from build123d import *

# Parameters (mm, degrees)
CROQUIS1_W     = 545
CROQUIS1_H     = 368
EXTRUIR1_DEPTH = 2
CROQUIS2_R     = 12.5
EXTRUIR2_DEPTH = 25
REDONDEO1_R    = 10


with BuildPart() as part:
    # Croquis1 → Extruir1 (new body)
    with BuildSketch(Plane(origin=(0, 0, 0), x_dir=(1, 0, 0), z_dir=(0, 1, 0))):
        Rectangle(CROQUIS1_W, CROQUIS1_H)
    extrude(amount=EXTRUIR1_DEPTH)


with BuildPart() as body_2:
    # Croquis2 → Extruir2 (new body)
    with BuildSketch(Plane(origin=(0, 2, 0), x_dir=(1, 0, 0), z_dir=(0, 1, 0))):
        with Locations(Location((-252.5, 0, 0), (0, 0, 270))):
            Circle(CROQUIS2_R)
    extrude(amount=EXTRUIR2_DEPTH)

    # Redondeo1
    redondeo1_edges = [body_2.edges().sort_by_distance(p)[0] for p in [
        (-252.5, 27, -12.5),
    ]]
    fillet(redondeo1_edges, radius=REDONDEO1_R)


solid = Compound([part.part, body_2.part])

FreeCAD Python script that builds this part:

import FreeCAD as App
import Part
import Sketcher

V = App.Vector
Q = App.Units.Quantity


def edges_at(feature, points):
    """Names of the edges that pass closest to the given points."""
    edges = feature.Shape.Edges
    near = lambda p: min(range(len(edges)), key=lambda i: edges[i].distToShape(Part.Vertex(*p))[0])
    return sorted({f"Edge{near(p) + 1}" for p in points})


def add_polygon(sketch, points):
    """Adds a closed chain of lines whose ends are joined by coincident constraints."""
    first, n = sketch.GeometryCount, len(points)
    for a, b in zip(points, points[1:] + points[:1]):
        sketch.addGeometry(Part.LineSegment(App.Vector(*a, 0), App.Vector(*b, 0)), False)
    for i in range(n):
        sketch.addConstraint(Sketcher.Constraint("Coincident", first + i, 2, first + (i + 1) % n, 1))

doc = App.newDocument("Part")
params = doc.addObject("Spreadsheet::Sheet", "Params")
for row, (alias, value) in enumerate([
    ("sketch1_width", "545 mm"),
    ("sketch1_height", "368 mm"),
    ("pad1_length", "2 mm"),
    ("sketch2_diameter", "25 mm"),
    ("pad2_length", "25 mm"),
    ("fillet_radius", "10 mm"),
], start=1):
    params.set(f"A{row}", alias)
    params.set(f"B{row}", "=" + value)
    params.setAlias(f"B{row}", alias)

body = doc.addObject("PartDesign::Body", "Body")

sketch1 = body.newObject("Sketcher::SketchObject", "Sketch")
sketch1.AttachmentSupport = (doc.getObject("XZ_Plane"), [""])
sketch1.MapMode = "FlatFace"
add_polygon(sketch1, [(-272, -184), (-272, 184), (272, 184), (272, -184)])
sketch1.addConstraint([
    Sketcher.Constraint("Vertical", 0),
    Sketcher.Constraint("Horizontal", 1),
    Sketcher.Constraint("Vertical", 2),
    Sketcher.Constraint("Horizontal", 3),
    Sketcher.Constraint("Symmetric", 0, 2, 2, 2, -1, 1),
    Sketcher.Constraint("DistanceX", 1, 1, 1, 2, Q("545 mm")),
    Sketcher.Constraint("DistanceY", 0, 1, 0, 2, Q("368 mm")),
])
sketch1.setExpression("Constraints[9]", "Params.sketch1_width")
sketch1.setExpression("Constraints[10]", "Params.sketch1_height")
pad1 = body.newObject("PartDesign::Pad", "Pad")
pad1.Profile = sketch1
pad1.setExpression("Length", "Params.pad1_length")
pad1.Reversed = True
body2 = doc.addObject("PartDesign::Body", "Body001")

sketch2 = body2.newObject("Sketcher::SketchObject", "Sketch001")
sketch2.AttachmentSupport = (doc.getObject("XZ_Plane001"), [""])
sketch2.MapMode = "FlatFace"
sketch2.AttachmentOffset = App.Placement(V(0, 0, -2), App.Rotation())
sketch2.addGeometry(Part.Circle(V(-252, 0, 0), V(0, 0, 1), 12), False)
sketch2.addConstraint([
    Sketcher.Constraint("PointOnObject", 0, 3, -1),
    Sketcher.Constraint("Diameter", 0, Q("25 mm")),
    Sketcher.Constraint("DistanceX", 0, 3, -1, 1, Q("252.5 mm")),
])
sketch2.setExpression("Constraints[1]", "Params.sketch2_diameter")
pad2 = body2.newObject("PartDesign::Pad", "Pad001")
pad2.Profile = sketch2
pad2.setExpression("Length", "Params.pad2_length")
pad2.Reversed = True
doc.recompute()

fillet = body2.newObject("PartDesign::Fillet", "Fillet")
fillet.Base = (pad2, edges_at(pad2, [(-252.5, 27, -12.5)]))
fillet.setExpression("Radius", "Params.fillet_radius")

doc.recompute()
